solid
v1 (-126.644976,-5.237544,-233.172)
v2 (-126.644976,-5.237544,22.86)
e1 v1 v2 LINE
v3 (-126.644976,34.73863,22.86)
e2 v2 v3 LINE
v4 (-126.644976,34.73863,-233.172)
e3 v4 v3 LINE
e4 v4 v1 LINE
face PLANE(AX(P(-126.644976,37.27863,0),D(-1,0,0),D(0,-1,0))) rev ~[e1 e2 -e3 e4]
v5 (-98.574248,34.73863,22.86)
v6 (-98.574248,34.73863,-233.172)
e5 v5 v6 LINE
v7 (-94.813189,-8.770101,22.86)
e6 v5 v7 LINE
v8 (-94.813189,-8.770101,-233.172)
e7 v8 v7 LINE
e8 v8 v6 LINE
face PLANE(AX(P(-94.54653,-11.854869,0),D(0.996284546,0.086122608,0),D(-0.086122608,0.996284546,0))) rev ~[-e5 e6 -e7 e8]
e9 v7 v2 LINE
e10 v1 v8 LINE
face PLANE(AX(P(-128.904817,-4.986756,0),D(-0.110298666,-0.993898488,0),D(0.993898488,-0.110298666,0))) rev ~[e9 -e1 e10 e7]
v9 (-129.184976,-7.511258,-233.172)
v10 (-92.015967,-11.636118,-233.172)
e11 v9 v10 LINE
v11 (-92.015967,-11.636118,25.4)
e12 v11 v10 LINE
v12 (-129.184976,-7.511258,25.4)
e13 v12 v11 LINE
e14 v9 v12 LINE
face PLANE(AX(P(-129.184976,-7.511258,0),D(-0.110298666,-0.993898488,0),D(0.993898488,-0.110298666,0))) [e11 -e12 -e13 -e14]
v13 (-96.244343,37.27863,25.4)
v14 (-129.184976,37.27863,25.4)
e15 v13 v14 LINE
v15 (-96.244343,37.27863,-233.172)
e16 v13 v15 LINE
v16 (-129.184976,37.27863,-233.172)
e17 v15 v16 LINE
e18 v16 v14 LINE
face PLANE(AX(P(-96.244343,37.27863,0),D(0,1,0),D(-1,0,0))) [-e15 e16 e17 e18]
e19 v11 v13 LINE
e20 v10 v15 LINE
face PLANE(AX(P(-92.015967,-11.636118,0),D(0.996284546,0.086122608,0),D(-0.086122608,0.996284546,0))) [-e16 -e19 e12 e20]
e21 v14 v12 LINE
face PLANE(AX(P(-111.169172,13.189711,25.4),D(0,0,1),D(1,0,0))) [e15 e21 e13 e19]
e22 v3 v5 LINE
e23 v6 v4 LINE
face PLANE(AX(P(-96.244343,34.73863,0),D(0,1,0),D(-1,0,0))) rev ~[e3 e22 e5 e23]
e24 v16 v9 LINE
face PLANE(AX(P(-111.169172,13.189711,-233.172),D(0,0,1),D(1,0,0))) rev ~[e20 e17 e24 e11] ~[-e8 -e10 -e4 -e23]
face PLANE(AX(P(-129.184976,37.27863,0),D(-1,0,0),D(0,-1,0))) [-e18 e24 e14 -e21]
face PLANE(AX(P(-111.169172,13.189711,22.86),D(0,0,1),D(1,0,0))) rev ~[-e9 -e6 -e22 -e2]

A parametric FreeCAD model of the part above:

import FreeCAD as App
import Part
import Sketcher
from FreeCAD import Vector
Q = App.Units.Quantity


def faces_at(feature, points):
    """Names of the faces that lie closest to the given points."""
    faces = feature.Shape.Faces
    near = lambda p: min(range(len(faces)), key=lambda i: faces[i].distToShape(Part.Vertex(*p))[0])
    return sorted({f"Face{near(p) + 1}" for p in points})

doc = App.newDocument("Part")
params = doc.addObject("Spreadsheet::Sheet", "Params")
for row, (alias, value) in enumerate([
    ("pad1_length", "1 in"),
    ("pad2_length", "9.18 in"),
    ("thickness_wall", "0.1 in"),
], start=1):
    params.set(f"A{row}", alias)
    params.set(f"B{row}", "=" + value)
    params.setAlias(f"B{row}", alias)

body = doc.addObject("PartDesign::Body", "Body")

sketch1 = body.newObject("Sketcher::SketchObject", "Sketch")
sketch1.AttachmentSupport = (doc.getObject("XY_Plane"), [""])
sketch1.MapMode = "FlatFace"
sketch1.addGeometry(Part.LineSegment(Vector(-96, 37, 0), Vector(-129, 37, 0)), False)
sketch1.addGeometry(Part.LineSegment(Vector(-129, 37, 0), Vector(-129, -8, 0)), False)
sketch1.addGeometry(Part.LineSegment(Vector(-129, -8, 0), Vector(-92, -12, 0)), False)
sketch1.addGeometry(Part.LineSegment(Vector(-92, -12, 0), Vector(-96, 37, 0)), False)
sketch1.addConstraint(Sketcher.Constraint("Coincident", 0, 2, 1, 1))
sketch1.addConstraint(Sketcher.Constraint("Coincident", 1, 2, 2, 1))
sketch1.addConstraint(Sketcher.Constraint("Coincident", 2, 2, 3, 1))
sketch1.addConstraint(Sketcher.Constraint("Coincident", 3, 2, 0, 1))
sketch1.addConstraint(Sketcher.Constraint("Horizontal", 0))
sketch1.addConstraint(Sketcher.Constraint("Vertical", 1))
sketch1.addConstraint(Sketcher.Constraint("Distance", 2, Q("37.397188 mm")))
sketch1.addConstraint(Sketcher.Constraint("DistanceX", 0, 2, 0, 1, Q("32.940633 mm")))
sketch1.addConstraint(Sketcher.Constraint("DistanceY", 1, 2, 1, 1, Q("44.789888 mm")))
sketch1.addConstraint(Sketcher.Constraint("DistanceY", -1, 1, 0, 2, Q("37.27863 mm")))
sketch1.addConstraint(Sketcher.Constraint("DistanceX", 1, 2, 2, 2, Q("37.169009 mm")))
sketch1.addConstraint(Sketcher.Constraint("DistanceX", 0, 2, -1, 1, Q("129.184976 mm")))
pad1 = body.newObject("PartDesign::Pad", "Pad")
pad1.Profile = sketch1
pad1.setExpression("Length", "Params.pad1_length")

sketch2 = body.newObject("Sketcher::SketchObject", "Sketch001")
sketch2.AttachmentSupport = (doc.getObject("XY_Plane"), [""])
sketch2.MapMode = "FlatFace"
sketch2.addGeometry(Part.LineSegment(Vector(-96, 37, 0), Vector(-129, 37, 0)), False)
sketch2.addGeometry(Part.LineSegment(Vector(-129, 37, 0), Vector(-129, -8, 0)), False)
sketch2.addGeometry(Part.LineSegment(Vector(-129, -8, 0), Vector(-92, -12, 0)), False)
sketch2.addGeometry(Part.LineSegment(Vector(-92, -12, 0), Vector(-96, 37, 0)), False)
sketch2.addConstraint(Sketcher.Constraint("Coincident", 0, 2, 1, 1))
sketch2.addConstraint(Sketcher.Constraint("Coincident", 1, 2, 2, 1))
sketch2.addConstraint(Sketcher.Constraint("Coincident", 2, 2, 3, 1))
sketch2.addConstraint(Sketcher.Constraint("Coincident", 3, 2, 0, 1))
sketch2.addConstraint(Sketcher.Constraint("Horizontal", 0))
sketch2.addConstraint(Sketcher.Constraint("Vertical", 1))
sketch2.addConstraint(Sketcher.Constraint("Distance", 2, Q("37.397188 mm")))
sketch2.addConstraint(Sketcher.Constraint("DistanceX", 0, 2, 0, 1, Q("32.940633 mm")))
sketch2.addConstraint(Sketcher.Constraint("DistanceY", 1, 2, 1, 1, Q("44.789888 mm")))
sketch2.addConstraint(Sketcher.Constraint("DistanceY", -1, 1, 0, 2, Q("37.27863 mm")))
sketch2.addConstraint(Sketcher.Constraint("DistanceX", 1, 2, 2, 2, Q("37.169009 mm")))
sketch2.addConstraint(Sketcher.Constraint("DistanceX", 0, 2, -1, 1, Q("129.184976 mm")))
pad2 = body.newObject("PartDesign::Pad", "Pad001")
pad2.Profile = sketch2
pad2.setExpression("Length", "Params.pad2_length")
pad2.Reversed = True
doc.recompute()

thickness = body.newObject("PartDesign::Thickness", "Thickness")
thickness.Base = (pad2, faces_at(pad2, [(-110.6, 12.821, -233.172)]))
thickness.setExpression("Value", "Params.thickness_wall")
thickness.Reversed = True
thickness.Join = "Arc"

doc.recompute()
